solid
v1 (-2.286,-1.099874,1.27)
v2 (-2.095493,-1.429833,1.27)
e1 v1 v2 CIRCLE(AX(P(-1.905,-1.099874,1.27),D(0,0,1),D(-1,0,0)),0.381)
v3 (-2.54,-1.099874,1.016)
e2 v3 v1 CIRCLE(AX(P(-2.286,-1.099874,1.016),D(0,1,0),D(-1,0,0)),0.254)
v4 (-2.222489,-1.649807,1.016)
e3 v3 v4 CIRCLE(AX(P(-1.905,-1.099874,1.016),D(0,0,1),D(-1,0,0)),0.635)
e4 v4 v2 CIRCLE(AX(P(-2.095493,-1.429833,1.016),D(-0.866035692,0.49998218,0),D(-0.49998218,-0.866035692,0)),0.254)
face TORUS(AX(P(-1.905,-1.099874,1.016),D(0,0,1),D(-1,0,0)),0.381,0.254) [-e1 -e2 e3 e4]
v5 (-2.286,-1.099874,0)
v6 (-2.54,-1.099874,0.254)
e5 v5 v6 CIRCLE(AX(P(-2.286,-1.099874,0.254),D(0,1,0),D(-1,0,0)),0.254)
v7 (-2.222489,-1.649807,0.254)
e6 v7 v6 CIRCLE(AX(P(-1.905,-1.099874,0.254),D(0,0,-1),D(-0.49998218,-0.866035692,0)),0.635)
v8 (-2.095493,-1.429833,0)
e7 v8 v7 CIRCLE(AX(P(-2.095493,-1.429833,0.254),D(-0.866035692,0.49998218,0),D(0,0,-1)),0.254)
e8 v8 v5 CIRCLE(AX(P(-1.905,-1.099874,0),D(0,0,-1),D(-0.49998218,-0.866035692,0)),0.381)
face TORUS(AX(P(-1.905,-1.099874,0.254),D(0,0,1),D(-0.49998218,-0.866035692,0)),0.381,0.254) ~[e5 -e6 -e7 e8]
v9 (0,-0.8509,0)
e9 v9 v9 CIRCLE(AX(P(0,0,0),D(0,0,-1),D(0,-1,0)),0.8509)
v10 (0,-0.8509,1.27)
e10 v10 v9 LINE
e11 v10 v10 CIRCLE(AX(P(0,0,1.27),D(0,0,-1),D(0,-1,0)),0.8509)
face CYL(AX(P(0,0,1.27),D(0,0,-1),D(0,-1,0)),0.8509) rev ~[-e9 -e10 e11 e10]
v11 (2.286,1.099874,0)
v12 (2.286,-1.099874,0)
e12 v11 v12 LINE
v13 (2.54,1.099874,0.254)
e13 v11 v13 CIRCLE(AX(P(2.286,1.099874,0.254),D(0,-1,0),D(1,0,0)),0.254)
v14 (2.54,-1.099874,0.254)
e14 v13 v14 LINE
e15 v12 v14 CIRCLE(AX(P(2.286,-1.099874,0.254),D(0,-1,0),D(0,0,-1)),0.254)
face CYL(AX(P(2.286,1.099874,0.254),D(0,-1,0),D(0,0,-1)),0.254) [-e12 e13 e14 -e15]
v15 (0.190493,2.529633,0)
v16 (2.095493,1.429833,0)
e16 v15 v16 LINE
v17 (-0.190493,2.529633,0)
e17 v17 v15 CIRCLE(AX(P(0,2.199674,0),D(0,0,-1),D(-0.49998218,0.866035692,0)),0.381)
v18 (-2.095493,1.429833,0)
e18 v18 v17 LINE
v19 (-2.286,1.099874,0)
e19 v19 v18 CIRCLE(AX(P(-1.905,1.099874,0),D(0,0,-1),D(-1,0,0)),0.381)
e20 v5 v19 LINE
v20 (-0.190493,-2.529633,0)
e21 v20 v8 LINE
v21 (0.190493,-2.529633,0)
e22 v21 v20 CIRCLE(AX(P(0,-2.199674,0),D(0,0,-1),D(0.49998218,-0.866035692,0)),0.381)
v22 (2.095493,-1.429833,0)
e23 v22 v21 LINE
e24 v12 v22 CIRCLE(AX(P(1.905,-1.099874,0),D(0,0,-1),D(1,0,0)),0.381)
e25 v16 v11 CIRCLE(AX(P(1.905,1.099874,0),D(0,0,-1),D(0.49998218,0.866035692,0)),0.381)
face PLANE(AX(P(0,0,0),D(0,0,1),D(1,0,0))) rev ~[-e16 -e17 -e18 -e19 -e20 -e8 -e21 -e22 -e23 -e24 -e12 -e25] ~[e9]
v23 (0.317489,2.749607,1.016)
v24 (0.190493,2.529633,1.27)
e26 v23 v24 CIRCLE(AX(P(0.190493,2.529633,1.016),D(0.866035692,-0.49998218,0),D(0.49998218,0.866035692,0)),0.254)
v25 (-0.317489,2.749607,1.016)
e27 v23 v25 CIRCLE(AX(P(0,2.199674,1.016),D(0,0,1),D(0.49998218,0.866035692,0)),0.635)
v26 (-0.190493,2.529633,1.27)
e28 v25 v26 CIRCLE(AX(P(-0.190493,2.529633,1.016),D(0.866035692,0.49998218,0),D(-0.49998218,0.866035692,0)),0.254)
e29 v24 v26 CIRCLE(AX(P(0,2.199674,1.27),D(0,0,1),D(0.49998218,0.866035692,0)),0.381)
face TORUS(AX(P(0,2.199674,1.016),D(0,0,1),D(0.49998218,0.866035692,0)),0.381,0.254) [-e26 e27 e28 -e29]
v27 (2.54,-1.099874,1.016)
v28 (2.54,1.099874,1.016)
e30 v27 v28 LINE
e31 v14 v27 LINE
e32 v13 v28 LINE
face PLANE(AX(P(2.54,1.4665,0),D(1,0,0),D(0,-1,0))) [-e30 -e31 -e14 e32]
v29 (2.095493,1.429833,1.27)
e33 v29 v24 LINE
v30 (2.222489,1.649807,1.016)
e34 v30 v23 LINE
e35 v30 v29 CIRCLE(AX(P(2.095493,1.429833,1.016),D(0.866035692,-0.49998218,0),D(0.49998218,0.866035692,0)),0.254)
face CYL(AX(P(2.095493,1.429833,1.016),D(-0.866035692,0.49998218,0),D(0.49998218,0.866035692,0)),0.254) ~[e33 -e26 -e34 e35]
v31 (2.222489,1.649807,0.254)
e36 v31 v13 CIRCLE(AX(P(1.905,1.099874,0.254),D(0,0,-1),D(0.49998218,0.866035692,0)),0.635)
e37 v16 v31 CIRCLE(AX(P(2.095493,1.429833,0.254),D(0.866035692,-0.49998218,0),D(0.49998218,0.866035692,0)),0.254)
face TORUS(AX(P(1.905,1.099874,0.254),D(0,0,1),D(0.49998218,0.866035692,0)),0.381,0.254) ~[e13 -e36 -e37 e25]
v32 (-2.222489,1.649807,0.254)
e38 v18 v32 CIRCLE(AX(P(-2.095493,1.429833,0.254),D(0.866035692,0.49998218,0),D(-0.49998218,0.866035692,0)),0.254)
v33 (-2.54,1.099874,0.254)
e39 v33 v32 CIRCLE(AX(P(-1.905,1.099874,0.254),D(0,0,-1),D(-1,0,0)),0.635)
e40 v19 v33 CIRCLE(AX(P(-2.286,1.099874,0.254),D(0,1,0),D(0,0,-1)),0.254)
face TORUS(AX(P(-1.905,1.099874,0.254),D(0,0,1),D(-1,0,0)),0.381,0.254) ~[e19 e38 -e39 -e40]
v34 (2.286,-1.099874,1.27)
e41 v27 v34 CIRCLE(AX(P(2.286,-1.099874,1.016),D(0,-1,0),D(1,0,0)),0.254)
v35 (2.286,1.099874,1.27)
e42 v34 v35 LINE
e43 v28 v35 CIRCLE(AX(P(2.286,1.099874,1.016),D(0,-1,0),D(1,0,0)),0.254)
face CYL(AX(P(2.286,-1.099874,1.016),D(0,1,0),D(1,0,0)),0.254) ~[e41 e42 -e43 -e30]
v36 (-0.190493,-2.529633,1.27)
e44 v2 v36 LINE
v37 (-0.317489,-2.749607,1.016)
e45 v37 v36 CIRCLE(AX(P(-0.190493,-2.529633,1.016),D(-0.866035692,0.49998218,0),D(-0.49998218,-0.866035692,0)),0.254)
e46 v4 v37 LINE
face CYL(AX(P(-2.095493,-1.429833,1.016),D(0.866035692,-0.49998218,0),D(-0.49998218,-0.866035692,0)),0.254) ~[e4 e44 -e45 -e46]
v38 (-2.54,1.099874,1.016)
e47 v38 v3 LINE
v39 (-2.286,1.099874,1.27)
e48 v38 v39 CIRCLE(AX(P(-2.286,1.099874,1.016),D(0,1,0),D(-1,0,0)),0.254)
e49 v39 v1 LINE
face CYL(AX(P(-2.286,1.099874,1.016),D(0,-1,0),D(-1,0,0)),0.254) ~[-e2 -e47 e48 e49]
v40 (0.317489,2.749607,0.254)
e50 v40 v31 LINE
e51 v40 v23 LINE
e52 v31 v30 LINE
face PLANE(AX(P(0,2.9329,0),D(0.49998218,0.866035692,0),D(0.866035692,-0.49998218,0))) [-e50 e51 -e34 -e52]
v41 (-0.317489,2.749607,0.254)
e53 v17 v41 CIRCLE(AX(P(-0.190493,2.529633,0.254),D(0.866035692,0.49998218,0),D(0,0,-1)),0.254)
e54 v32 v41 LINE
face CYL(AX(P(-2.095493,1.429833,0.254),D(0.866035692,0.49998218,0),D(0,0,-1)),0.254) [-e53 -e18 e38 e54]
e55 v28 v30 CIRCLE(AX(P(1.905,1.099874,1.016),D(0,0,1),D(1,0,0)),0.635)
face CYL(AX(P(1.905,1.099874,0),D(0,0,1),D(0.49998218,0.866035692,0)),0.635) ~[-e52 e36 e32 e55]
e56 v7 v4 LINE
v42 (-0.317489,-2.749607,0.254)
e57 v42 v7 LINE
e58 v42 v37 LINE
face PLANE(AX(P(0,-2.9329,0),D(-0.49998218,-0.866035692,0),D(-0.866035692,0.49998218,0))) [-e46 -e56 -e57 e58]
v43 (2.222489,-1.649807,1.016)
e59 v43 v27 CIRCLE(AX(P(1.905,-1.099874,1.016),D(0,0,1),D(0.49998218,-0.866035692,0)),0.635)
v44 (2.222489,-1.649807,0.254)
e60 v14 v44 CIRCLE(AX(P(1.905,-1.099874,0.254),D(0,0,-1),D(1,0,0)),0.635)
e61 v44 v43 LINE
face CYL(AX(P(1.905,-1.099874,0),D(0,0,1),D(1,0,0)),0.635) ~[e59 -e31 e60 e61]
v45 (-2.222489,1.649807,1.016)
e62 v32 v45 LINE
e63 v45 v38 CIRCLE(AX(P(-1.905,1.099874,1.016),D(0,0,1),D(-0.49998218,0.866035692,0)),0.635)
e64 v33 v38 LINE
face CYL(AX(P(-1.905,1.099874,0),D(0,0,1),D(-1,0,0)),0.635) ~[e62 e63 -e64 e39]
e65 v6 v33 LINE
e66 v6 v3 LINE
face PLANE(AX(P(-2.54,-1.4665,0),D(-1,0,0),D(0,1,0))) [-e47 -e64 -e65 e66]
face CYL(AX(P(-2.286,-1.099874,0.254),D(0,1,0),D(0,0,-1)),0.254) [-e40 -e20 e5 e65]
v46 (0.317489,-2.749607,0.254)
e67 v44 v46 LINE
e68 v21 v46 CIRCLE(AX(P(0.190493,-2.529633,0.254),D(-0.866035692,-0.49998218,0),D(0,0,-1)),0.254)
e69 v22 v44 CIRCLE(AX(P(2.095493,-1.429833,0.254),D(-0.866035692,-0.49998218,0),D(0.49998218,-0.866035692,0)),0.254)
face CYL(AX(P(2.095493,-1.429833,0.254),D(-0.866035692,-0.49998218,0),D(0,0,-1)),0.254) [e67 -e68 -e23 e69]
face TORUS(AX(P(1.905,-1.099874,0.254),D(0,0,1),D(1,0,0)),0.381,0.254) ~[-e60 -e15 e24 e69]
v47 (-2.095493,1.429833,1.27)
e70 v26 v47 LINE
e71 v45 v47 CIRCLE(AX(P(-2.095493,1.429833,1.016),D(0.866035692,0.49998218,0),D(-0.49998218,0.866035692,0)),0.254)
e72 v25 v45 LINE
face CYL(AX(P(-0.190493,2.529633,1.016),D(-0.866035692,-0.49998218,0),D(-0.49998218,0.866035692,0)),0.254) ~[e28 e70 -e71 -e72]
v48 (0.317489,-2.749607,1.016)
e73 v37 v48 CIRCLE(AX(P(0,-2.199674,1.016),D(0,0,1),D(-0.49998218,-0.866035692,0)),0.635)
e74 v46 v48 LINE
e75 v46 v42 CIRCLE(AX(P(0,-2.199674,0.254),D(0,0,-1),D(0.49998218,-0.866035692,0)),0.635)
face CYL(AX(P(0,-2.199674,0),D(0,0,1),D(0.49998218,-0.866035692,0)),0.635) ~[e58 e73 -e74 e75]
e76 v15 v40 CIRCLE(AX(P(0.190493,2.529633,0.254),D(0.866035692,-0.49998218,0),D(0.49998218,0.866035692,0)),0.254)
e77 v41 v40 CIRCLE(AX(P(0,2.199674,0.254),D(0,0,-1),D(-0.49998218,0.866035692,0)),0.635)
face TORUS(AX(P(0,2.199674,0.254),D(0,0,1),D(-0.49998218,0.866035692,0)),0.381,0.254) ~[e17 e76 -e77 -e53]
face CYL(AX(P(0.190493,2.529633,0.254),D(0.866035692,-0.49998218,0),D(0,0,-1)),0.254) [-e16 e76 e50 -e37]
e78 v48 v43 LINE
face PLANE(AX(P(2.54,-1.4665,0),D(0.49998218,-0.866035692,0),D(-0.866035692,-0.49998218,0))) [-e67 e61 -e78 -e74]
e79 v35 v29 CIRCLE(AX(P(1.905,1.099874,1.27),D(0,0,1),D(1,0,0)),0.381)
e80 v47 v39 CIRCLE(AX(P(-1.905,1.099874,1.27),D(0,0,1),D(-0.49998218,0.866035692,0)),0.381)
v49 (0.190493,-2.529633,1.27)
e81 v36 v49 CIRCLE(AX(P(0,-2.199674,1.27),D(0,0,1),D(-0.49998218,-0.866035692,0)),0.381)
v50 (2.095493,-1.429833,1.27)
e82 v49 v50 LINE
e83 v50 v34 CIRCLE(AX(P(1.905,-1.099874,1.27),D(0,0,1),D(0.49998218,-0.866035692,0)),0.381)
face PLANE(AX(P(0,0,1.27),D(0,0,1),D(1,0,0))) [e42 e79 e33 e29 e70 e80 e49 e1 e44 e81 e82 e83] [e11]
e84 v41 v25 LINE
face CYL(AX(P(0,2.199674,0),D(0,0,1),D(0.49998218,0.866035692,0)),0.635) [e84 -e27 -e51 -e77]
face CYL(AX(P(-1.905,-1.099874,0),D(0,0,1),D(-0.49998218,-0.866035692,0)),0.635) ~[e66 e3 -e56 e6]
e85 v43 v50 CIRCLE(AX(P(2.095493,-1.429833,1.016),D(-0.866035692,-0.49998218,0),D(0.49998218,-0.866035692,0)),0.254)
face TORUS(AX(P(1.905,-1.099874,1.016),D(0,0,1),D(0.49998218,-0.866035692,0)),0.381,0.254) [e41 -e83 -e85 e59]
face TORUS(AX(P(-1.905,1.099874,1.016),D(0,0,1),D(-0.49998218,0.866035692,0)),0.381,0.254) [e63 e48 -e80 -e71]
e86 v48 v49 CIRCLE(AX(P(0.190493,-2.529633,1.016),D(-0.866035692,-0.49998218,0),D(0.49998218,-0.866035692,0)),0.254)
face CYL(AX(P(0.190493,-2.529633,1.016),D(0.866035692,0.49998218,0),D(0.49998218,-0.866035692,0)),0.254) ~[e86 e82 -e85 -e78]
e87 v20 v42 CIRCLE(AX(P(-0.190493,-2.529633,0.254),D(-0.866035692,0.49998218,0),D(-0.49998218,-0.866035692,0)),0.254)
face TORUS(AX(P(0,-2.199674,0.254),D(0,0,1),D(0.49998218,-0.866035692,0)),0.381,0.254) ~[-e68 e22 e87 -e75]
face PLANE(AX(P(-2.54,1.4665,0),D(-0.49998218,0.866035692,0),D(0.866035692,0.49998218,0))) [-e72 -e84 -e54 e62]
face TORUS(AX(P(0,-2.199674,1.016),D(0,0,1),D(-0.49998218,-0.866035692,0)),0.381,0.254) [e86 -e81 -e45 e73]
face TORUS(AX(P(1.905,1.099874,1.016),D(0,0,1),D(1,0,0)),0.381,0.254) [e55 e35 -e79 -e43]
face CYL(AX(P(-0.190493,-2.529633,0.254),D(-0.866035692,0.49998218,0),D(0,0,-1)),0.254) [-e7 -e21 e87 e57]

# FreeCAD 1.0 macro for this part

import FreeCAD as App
import Part
import Sketcher
Q = App.Units.Quantity


def edges_at(feature, points):
    """Names of the edges that pass closest to the given points."""
    edges = feature.Shape.Edges
    near = lambda p: min(range(len(edges)), key=lambda i: edges[i].distToShape(Part.Vertex(*p))[0])
    return sorted({f"Edge{near(p) + 1}" for p in points})


def add_polygon(sketch, points):
    """Adds a closed chain of lines whose ends are joined by coincident constraints."""
    first, n = sketch.GeometryCount, len(points)
    for a, b in zip(points, points[1:] + points[:1]):
        sketch.addGeometry(Part.LineSegment(App.Vector(*a, 0), App.Vector(*b, 0)), False)
    for i in range(n):
        sketch.addConstraint(Sketcher.Constraint("Coincident", first + i, 2, first + (i + 1) % n, 1))

doc = App.newDocument("Part")
body = doc.addObject("PartDesign::Body", "Body")

# Sketch on XY plane
sketch1 = doc.addObject("Sketcher::SketchObject", "Sketch")
body.addObject(sketch1)
sketch1.AttachmentSupport = (doc.XY_Plane, [""])
sketch1.MapMode = "FlatFace"
add_polygon(sketch1, [(2.54, 1.4665), (0, 2.9329), (-2.54, 1.4665), (-2.54, -1.4665), (0, -2.9329), (2.54, -1.4665)])  # lines 0-5
sketch1.addConstraint([
    Sketcher.Constraint("Vertical", 2),
    Sketcher.Constraint("Vertical", 5),
    Sketcher.Constraint("Symmetric", 0, 2, 3, 2, -1, 1),
    Sketcher.Constraint("Symmetric", 1, 2, 4, 2, -1, 1),
    Sketcher.Constraint("PointOnObject", 0, 2, -2),
    Sketcher.Constraint("Parallel", 0, 3),
    Sketcher.Constraint("Horizontal", 2, 2, 4, 2),
    Sketcher.Constraint("DistanceX", 2, 2, 4, 2, Q("0.2 in")),
    Sketcher.Constraint("Angle", 0, Q("150.0012 deg")),
    Sketcher.Constraint("DistanceY", 2, 2, 2, 1, 2.933),
])
pad1 = doc.addObject("PartDesign::Pad", "Pad")
body.addObject(pad1)
pad1.Profile = sketch1
pad1.Length = Q("0.05 in")
doc.recompute()

fillet = doc.addObject("PartDesign::Fillet", "Fillet")
body.addObject(fillet)
fillet.Base = (pad1, edges_at(pad1, [
    (-2.54, -1.466, 0.635),
    (0, -2.933, 0.635),
    (2.54, -1.466, 0.635),
    (-2.54, 1.466, 0.635),
    (2.54, 1.466, 0.635),
    (0, 2.933, 0.635),
]))
fillet.Radius = Q("0.025 in")
doc.recompute()

fillet2 = doc.addObject("PartDesign::Fillet", "Fillet001")
body.addObject(fillet2)
fillet2.Base = (fillet, edges_at(fillet, [
    (0, 2.835, 1.27),
    (-1.27, 2.2, 1.27),
    (-2.455, 1.417, 1.27),
    (-2.54, 0, 1.27),
    (-2.455, -1.417, 1.27),
    (-1.27, -2.2, 1.27),
    (0, -2.835, 1.27),
    (1.27, -2.2, 1.27),
    (2.455, -1.417, 1.27),
    (2.54, 0, 1.27),
    (2.455, 1.417, 1.27),
    (1.27, 2.2, 1.27),
]))
fillet2.Radius = Q("0.01 in")
doc.recompute()

fillet3 = doc.addObject("PartDesign::Fillet", "Fillet002")
body.addObject(fillet3)
fillet3.Base = (fillet2, edges_at(fillet2, [
    (2.455, 1.417, 0),
    (2.54, 0, 0),
    (2.455, -1.417, 0),
    (1.27, -2.2, 0),
    (0, -2.835, 0),
    (-1.27, -2.2, 0),
    (-2.455, -1.417, 0),
    (-2.54, 0, 0),
    (-2.455, 1.417, 0),
    (-1.27, 2.2, 0),
    (0, 2.835, 0),
    (1.27, 2.2, 0),
]))
fillet3.Radius = Q("0.01 in")

# Sketch on XY plane
sketch2 = doc.addObject("Sketcher::SketchObject", "Sketch001")
body.addObject(sketch2)
sketch2.AttachmentSupport = (doc.XY_Plane, [""])
sketch2.MapMode = "FlatFace"
sketch2.AttachmentOffset = App.Placement(App.Vector(0, 0, 0.05 * 25.4), App.Rotation())
sketch2.addGeometry(Part.Circle(App.Vector(0, 0, 0), App.Vector(0, 0, 1), 0.8509), False)
sketch2.addConstraint([
    Sketcher.Constraint("Coincident", 0, 3, -1, 1),
    Sketcher.Constraint("Diameter", 0, Q("0.067 in")),
])
doc.recompute()
hole = doc.addObject("PartDesign::Hole", "Hole")
body.addObject(hole)
hole.Profile = sketch2
hole.ThreadType = "None"
hole.Diameter = Q("0.067 in")
hole.DepthType = "Dimension"
hole.Depth = Q("0.261 in")
hole.DrillPoint = "Angled"
hole.DrillPointAngle = 118

doc.recompute()
